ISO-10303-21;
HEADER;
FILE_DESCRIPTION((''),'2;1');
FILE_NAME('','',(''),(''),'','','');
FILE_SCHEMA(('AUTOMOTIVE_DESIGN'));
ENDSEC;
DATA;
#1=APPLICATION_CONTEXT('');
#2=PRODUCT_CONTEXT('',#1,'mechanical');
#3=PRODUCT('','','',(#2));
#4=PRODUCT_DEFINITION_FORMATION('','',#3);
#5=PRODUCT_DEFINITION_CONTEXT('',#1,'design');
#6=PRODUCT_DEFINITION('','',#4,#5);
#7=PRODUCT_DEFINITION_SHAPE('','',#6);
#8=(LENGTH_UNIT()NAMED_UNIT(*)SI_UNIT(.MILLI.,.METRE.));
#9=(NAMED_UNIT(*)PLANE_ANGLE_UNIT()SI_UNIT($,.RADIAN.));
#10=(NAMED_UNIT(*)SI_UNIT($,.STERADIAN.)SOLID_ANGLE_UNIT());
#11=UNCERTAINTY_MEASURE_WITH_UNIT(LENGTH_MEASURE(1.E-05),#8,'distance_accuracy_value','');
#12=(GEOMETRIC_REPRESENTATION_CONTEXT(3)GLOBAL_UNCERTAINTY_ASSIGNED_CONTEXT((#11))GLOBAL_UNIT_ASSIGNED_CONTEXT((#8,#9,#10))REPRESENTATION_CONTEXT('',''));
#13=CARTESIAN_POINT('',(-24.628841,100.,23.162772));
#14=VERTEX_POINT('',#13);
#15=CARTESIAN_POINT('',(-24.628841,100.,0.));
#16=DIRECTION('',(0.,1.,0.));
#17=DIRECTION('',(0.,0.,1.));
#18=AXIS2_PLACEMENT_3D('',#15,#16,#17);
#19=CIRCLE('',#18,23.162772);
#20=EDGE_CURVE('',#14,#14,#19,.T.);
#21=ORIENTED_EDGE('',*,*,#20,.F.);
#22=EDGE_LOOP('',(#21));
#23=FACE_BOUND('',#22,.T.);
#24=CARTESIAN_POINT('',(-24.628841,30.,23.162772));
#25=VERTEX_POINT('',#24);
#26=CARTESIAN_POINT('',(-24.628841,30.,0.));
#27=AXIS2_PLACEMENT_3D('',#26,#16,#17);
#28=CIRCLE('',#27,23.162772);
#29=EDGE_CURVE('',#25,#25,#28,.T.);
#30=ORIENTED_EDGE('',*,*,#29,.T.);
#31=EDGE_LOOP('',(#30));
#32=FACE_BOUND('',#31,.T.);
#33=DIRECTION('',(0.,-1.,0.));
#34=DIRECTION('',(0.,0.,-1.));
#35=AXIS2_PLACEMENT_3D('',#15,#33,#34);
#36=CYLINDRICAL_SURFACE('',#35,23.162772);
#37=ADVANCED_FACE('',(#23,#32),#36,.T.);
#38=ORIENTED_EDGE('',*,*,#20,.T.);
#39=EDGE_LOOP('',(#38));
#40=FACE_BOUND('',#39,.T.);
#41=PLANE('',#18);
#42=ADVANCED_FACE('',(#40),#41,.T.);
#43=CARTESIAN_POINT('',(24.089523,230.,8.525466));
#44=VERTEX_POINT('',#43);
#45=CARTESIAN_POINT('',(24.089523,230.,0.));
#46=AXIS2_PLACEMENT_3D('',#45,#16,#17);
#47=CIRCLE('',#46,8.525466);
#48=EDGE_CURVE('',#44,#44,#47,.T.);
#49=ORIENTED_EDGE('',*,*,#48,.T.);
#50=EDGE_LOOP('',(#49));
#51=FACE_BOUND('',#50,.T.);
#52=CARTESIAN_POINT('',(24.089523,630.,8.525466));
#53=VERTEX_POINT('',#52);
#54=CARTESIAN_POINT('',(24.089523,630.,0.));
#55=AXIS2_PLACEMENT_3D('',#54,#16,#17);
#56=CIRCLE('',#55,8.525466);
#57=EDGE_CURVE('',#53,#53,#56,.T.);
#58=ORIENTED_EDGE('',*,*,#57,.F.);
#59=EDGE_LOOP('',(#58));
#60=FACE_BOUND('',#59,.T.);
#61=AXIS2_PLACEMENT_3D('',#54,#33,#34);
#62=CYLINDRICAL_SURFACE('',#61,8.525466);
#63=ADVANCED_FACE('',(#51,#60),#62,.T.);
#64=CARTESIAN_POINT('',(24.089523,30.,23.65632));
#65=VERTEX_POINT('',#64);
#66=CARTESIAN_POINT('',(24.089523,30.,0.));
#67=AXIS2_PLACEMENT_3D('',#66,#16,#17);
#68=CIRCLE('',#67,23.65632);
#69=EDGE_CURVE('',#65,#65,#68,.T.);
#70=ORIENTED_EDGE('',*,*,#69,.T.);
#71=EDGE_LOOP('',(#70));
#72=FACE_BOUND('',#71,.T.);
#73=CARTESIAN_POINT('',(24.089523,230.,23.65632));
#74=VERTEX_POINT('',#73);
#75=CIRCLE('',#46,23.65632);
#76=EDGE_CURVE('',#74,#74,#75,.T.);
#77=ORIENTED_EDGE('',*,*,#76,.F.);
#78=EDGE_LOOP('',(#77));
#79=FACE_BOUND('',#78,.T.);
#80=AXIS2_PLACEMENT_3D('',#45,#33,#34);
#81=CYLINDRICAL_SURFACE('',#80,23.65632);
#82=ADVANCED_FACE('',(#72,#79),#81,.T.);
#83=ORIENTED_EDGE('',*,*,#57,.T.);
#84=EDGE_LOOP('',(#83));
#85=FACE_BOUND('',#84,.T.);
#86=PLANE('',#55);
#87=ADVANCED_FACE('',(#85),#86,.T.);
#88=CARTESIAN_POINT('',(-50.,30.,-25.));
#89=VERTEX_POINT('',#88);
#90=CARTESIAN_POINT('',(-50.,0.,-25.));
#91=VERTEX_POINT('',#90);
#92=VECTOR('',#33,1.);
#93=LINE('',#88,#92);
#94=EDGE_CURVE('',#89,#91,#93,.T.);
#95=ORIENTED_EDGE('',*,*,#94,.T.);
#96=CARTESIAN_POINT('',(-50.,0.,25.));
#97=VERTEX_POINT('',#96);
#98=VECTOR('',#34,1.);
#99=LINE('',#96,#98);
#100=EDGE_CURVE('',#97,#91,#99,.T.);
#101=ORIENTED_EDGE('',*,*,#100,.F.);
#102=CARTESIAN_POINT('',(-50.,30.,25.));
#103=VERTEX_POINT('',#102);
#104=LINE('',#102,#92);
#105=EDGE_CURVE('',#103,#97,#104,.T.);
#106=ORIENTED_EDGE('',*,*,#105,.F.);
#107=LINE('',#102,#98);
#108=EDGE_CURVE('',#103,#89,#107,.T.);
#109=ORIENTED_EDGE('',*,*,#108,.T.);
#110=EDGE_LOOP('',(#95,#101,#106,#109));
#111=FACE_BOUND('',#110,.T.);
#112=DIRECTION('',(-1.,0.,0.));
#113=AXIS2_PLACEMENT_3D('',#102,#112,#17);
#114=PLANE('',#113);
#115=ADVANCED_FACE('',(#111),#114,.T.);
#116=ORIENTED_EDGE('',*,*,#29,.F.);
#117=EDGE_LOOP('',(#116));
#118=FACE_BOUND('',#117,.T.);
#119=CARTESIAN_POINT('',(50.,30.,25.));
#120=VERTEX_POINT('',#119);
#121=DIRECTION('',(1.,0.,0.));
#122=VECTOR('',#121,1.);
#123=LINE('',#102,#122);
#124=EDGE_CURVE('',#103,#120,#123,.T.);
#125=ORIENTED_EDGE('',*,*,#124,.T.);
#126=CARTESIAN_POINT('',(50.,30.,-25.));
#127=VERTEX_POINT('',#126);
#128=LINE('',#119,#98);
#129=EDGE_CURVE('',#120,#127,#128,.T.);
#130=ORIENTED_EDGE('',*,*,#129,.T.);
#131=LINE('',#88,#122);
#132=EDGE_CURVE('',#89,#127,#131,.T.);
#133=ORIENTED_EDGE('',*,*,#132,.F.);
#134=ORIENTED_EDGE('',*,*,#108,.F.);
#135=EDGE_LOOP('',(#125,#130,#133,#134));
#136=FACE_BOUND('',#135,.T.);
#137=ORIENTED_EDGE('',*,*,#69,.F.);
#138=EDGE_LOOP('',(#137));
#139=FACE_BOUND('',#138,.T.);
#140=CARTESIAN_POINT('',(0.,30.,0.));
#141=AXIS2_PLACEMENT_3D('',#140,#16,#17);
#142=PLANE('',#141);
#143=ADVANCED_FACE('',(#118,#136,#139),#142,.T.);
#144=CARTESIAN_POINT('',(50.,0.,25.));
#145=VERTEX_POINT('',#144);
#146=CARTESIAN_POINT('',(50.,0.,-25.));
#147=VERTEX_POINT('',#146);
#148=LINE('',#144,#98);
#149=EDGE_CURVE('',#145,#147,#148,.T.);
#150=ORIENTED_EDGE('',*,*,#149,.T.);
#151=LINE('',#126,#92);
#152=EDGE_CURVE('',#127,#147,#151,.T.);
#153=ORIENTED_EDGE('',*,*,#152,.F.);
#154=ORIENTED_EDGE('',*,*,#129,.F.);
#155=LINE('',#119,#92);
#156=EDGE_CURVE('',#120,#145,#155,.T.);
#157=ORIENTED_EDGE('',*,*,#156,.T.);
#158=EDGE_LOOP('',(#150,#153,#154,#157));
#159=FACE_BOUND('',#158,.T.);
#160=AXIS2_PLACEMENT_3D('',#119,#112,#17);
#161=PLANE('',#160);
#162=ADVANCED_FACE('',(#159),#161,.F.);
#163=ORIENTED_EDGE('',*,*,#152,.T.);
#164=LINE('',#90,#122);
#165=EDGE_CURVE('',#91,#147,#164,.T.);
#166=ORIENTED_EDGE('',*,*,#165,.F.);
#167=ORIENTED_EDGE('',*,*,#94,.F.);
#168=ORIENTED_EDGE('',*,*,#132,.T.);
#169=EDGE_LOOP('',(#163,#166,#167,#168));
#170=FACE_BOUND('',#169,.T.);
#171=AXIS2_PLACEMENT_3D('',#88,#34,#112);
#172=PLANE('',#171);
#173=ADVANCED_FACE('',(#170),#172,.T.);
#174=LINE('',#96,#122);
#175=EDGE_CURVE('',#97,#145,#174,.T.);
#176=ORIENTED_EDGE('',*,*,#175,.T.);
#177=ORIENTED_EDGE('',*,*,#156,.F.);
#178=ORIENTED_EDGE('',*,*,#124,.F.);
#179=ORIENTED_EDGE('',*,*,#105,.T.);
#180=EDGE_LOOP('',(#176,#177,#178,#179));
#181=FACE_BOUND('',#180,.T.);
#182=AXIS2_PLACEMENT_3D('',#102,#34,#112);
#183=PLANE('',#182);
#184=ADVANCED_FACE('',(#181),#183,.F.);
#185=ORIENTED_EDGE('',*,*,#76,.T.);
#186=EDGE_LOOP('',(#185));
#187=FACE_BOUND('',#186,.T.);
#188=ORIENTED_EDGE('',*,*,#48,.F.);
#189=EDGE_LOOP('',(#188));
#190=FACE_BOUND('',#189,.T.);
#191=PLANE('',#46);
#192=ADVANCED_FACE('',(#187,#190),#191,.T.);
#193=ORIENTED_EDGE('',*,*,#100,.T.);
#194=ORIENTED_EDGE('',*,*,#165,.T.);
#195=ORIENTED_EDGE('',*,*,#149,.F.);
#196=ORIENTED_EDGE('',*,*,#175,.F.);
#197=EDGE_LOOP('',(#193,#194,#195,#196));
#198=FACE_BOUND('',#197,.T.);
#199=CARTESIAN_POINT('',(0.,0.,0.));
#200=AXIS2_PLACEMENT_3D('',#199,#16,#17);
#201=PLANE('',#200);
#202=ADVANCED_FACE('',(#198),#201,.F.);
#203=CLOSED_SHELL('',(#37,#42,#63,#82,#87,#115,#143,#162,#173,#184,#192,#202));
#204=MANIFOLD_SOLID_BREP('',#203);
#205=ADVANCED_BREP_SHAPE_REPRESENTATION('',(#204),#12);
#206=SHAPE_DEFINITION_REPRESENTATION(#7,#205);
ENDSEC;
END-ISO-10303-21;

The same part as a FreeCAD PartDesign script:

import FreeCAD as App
import Part
import Sketcher

V = App.Vector


def add_polygon(sketch, points):
    """Adds a closed chain of lines whose ends are joined by coincident constraints."""
    first, n = sketch.GeometryCount, len(points)
    for a, b in zip(points, points[1:] + points[:1]):
        sketch.addGeometry(Part.LineSegment(App.Vector(*a, 0), App.Vector(*b, 0)), False)
    for i in range(n):
        sketch.addConstraint(Sketcher.Constraint("Coincident", first + i, 2, first + (i + 1) % n, 1))

doc = App.newDocument("Part")
body = doc.addObject("PartDesign::Body", "Body")

# Sketch on XZ plane
sketch1 = body.newObject("Sketcher::SketchObject", "Sketch")
sketch1.AttachmentSupport = (doc.getObject("XZ_Plane"), [""])
sketch1.MapMode = "FlatFace"
add_polygon(sketch1, [(-50, -25), (-50, 25), (50, 25), (50, -25)])  # lines 0-3
sketch1.addConstraint(Sketcher.Constraint("Vertical", 0))
sketch1.addConstraint(Sketcher.Constraint("Horizontal", 1))
sketch1.addConstraint(Sketcher.Constraint("Vertical", 2))
sketch1.addConstraint(Sketcher.Constraint("Horizontal", 3))
sketch1.addConstraint(Sketcher.Constraint("Symmetric", 0, 2, 2, 2, -1, 1))
sketch1.addConstraint(Sketcher.Constraint("DistanceX", 1, 1, 1, 2, 100.0))
sketch1.addConstraint(Sketcher.Constraint("DistanceY", 0, 1, 0, 2, 50.0))
pad1 = body.newObject("PartDesign::Pad", "Pad")
pad1.Profile = sketch1
pad1.Length = 30
pad1.Reversed = True

# Sketch on XZ plane
sketch2 = body.newObject("Sketcher::SketchObject", "Sketch001")
sketch2.AttachmentSupport = (doc.getObject("XZ_Plane"), [""])
sketch2.MapMode = "FlatFace"
sketch2.AttachmentOffset = App.Placement(V(0, 0, -30), App.Rotation())
sketch2.addGeometry(Part.Circle(V(-25, 0, 0), V(0, 0, 1), 23), False)
sketch2.addConstraint(Sketcher.Constraint("PointOnObject", 0, 3, -1))
sketch2.addConstraint(Sketcher.Constraint("Diameter", 0, 46.325544))
sketch2.addConstraint(Sketcher.Constraint("DistanceX", 0, 3, -1, 1, 24.628841))
pad2 = body.newObject("PartDesign::Pad", "Pad001")
pad2.Profile = sketch2
pad2.Length = 70
pad2.Reversed = True

# Sketch on XZ plane
sketch3 = body.newObject("Sketcher::SketchObject", "Sketch002")
sketch3.AttachmentSupport = (doc.getObject("XZ_Plane"), [""])
sketch3.MapMode = "FlatFace"
sketch3.AttachmentOffset = App.Placement(V(0, 0, -30), App.Rotation())
sketch3.addGeometry(Part.Circle(V(24, 0, 0), V(0, 0, 1), 24), False)
sketch3.addConstraint(Sketcher.Constraint("PointOnObject", 0, 3, -1))
sketch3.addConstraint(Sketcher.Constraint("Diameter", 0, 47.312641))
sketch3.addConstraint(Sketcher.Constraint("DistanceX", -1, 1, 0, 3, 24.089523))
pad3 = body.newObject("PartDesign::Pad", "Pad002")
pad3.Profile = sketch3
pad3.Length = 200
pad3.Reversed = True

# Sketch on XZ plane
sketch4 = body.newObject("Sketcher::SketchObject", "Sketch003")
sketch4.AttachmentSupport = (doc.getObject("XZ_Plane"), [""])
sketch4.MapMode = "FlatFace"
sketch4.AttachmentOffset = App.Placement(V(0, 0, -230), App.Rotation())
sketch4.addGeometry(Part.Circle(V(24, 0, 0), V(0, 0, 1), 9), False)
sketch4.addConstraint(Sketcher.Constraint("PointOnObject", 0, 3, -1))
sketch4.addConstraint(Sketcher.Constraint("Diameter", 0, 17.050932))
sketch4.addConstraint(Sketcher.Constraint("DistanceX", -1, 1, 0, 3, 24.089523))
pad4 = body.newObject("PartDesign::Pad", "Pad003")
pad4.Profile = sketch4
pad4.Length = 400
pad4.Reversed = True

doc.recompute()
